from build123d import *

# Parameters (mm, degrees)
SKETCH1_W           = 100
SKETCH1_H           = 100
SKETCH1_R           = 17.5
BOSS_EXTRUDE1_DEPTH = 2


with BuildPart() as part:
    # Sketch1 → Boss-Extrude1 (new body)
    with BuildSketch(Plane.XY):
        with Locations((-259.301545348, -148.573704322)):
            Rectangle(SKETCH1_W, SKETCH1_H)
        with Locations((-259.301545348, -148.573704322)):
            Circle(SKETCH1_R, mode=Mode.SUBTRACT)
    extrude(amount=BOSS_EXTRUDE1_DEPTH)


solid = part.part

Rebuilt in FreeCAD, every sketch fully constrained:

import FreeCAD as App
import Part
import Sketcher
from FreeCAD import Vector
Q = App.Units.Quantity


def add_polygon(sketch, points):
    """Adds a closed chain of lines whose ends are joined by coincident constraints."""
    first, n = sketch.GeometryCount, len(points)
    for a, b in zip(points, points[1:] + points[:1]):
        sketch.addGeometry(Part.LineSegment(App.Vector(*a, 0), App.Vector(*b, 0)), False)
    for i in range(n):
        sketch.addConstraint(Sketcher.Constraint("Coincident", first + i, 2, first + (i + 1) % n, 1))

doc = App.newDocument("Part")
params = doc.addObject("Spreadsheet::Sheet", "Params")
for row, (alias, value) in enumerate([
    ("sketch1_diameter", "35 mm"),
    ("sketch1_width", "100 mm"),
    ("pad1_length", "2 mm"),
], start=1):
    params.set(f"A{row}", alias)
    params.set(f"B{row}", "=" + value)
    params.setAlias(f"B{row}", alias)

body = doc.addObject("PartDesign::Body", "Body")

sketch1 = doc.addObject("Sketcher::SketchObject", "Sketch")
body.addObject(sketch1)
sketch1.AttachmentSupport = (doc.XY_Plane, [""])
sketch1.MapMode = "FlatFace"
add_polygon(sketch1, [(-309, -99), (-309, -199), (-209, -199), (-209, -99)])
sketch1.addGeometry(Part.Circle(Vector(-259, -149, 0), Vector(0, 0, 1), 18), False)
sketch1.addConstraint(Sketcher.Constraint("Vertical", 0))
sketch1.addConstraint(Sketcher.Constraint("Horizontal", 1))
sketch1.addConstraint(Sketcher.Constraint("Vertical", 2))
sketch1.addConstraint(Sketcher.Constraint("Horizontal", 3))
sketch1.addConstraint(Sketcher.Constraint("Equal", 3, 0))
sketch1.addConstraint(Sketcher.Constraint("Diameter", 4, Q("35 mm")))
sketch1.addConstraint(Sketcher.Constraint("DistanceX", 1, 1, 1, 2, Q("100 mm")))
sketch1.addConstraint(Sketcher.Constraint("DistanceX", 0, 2, 4, 3, Q("50 mm")))
sketch1.addConstraint(Sketcher.Constraint("DistanceY", 0, 2, 4, 3, Q("50 mm")))
sketch1.addConstraint(Sketcher.Constraint("DistanceX", 4, 3, -1, 1, Q("259.301545 mm")))
sketch1.addConstraint(Sketcher.Constraint("DistanceY", 4, 3, -1, 1, Q("148.573704 mm")))
sketch1.setExpression("Constraints[9]", "Params.sketch1_diameter")
sketch1.setExpression("Constraints[10]", "Params.sketch1_width")
pad1 = doc.addObject("PartDesign::Pad", "Pad")
body.addObject(pad1)
pad1.Profile = sketch1
pad1.setExpression("Length", "Params.pad1_length")

doc.recompute()
